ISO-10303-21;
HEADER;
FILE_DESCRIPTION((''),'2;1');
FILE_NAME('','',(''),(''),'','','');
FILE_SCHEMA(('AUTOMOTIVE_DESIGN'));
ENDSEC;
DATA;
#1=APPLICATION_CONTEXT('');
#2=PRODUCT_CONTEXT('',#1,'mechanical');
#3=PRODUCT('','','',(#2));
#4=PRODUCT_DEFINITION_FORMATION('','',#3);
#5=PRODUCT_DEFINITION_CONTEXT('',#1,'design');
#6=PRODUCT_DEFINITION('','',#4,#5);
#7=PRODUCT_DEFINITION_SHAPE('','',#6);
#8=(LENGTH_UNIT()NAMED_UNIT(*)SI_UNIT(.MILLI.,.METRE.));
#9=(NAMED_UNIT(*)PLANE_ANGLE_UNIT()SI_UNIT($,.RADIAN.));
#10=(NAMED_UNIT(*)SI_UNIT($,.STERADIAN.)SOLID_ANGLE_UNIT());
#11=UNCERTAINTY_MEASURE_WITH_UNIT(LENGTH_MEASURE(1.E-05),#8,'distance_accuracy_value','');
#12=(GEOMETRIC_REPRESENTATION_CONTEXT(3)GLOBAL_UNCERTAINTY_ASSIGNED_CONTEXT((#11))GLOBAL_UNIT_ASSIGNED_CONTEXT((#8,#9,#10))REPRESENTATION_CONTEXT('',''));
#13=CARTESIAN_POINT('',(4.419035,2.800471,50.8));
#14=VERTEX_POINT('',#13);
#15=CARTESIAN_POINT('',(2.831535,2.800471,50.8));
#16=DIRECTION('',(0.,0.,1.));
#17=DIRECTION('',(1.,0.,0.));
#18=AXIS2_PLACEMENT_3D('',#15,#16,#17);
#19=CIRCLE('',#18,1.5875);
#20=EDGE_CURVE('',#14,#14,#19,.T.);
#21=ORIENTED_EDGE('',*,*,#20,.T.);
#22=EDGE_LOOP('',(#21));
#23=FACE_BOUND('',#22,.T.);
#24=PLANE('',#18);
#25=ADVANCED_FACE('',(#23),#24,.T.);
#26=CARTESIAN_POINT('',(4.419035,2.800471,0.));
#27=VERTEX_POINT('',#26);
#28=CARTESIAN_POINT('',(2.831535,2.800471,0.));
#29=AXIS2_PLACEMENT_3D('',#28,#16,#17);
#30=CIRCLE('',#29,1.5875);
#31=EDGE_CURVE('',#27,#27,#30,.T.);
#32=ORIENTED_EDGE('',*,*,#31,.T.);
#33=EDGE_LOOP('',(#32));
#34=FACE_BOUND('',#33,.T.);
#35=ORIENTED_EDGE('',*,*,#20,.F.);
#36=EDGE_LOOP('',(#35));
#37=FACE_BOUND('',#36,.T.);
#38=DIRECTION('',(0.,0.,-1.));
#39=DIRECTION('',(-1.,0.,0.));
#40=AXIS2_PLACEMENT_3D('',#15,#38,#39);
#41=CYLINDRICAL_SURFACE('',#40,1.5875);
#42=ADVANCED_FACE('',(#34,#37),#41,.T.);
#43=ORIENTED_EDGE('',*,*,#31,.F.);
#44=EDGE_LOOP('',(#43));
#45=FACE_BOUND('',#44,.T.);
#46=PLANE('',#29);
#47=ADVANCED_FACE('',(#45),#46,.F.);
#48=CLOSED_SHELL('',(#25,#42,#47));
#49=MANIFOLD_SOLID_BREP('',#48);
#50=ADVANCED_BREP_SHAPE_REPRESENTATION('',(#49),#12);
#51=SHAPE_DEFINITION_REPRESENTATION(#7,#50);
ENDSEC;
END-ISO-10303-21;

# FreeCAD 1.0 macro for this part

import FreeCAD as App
import Part
import Sketcher

V = App.Vector
Q = App.Units.Quantity

doc = App.newDocument("Part")
params = doc.addObject("Spreadsheet::Sheet", "Params")
for row, (alias, value) in enumerate([
    ("sketch1_diameter", "0.125 in"),
    ("pad1_length", "2 in"),
], start=1):
    params.set(f"A{row}", alias)
    params.set(f"B{row}", "=" + value)
    params.setAlias(f"B{row}", alias)

body = doc.addObject("PartDesign::Body", "Body")

# Sketch on XY plane
sketch1 = body.newObject("Sketcher::SketchObject", "Sketch")
sketch1.AttachmentSupport = (doc.getObject("XY_Plane"), [""])
sketch1.MapMode = "FlatFace"
sketch1.addGeometry(Part.Circle(V(2.8, 2.8, 0), V(0, 0, 1), 1.6), False)
sketch1.addConstraint([
    Sketcher.Constraint("Diameter", 0, Q("0.125 in")),
    Sketcher.Constraint("DistanceY", -1, 1, 0, 3, Q("2.800471 mm")),
    Sketcher.Constraint("DistanceX", -1, 1, 0, 3, Q("2.831535 mm")),
])
sketch1.setExpression("Constraints[0]", "Params.sketch1_diameter")
pad1 = body.newObject("PartDesign::Pad", "Pad")
pad1.Profile = sketch1
pad1.setExpression("Length", "Params.pad1_length")

doc.recompute()
